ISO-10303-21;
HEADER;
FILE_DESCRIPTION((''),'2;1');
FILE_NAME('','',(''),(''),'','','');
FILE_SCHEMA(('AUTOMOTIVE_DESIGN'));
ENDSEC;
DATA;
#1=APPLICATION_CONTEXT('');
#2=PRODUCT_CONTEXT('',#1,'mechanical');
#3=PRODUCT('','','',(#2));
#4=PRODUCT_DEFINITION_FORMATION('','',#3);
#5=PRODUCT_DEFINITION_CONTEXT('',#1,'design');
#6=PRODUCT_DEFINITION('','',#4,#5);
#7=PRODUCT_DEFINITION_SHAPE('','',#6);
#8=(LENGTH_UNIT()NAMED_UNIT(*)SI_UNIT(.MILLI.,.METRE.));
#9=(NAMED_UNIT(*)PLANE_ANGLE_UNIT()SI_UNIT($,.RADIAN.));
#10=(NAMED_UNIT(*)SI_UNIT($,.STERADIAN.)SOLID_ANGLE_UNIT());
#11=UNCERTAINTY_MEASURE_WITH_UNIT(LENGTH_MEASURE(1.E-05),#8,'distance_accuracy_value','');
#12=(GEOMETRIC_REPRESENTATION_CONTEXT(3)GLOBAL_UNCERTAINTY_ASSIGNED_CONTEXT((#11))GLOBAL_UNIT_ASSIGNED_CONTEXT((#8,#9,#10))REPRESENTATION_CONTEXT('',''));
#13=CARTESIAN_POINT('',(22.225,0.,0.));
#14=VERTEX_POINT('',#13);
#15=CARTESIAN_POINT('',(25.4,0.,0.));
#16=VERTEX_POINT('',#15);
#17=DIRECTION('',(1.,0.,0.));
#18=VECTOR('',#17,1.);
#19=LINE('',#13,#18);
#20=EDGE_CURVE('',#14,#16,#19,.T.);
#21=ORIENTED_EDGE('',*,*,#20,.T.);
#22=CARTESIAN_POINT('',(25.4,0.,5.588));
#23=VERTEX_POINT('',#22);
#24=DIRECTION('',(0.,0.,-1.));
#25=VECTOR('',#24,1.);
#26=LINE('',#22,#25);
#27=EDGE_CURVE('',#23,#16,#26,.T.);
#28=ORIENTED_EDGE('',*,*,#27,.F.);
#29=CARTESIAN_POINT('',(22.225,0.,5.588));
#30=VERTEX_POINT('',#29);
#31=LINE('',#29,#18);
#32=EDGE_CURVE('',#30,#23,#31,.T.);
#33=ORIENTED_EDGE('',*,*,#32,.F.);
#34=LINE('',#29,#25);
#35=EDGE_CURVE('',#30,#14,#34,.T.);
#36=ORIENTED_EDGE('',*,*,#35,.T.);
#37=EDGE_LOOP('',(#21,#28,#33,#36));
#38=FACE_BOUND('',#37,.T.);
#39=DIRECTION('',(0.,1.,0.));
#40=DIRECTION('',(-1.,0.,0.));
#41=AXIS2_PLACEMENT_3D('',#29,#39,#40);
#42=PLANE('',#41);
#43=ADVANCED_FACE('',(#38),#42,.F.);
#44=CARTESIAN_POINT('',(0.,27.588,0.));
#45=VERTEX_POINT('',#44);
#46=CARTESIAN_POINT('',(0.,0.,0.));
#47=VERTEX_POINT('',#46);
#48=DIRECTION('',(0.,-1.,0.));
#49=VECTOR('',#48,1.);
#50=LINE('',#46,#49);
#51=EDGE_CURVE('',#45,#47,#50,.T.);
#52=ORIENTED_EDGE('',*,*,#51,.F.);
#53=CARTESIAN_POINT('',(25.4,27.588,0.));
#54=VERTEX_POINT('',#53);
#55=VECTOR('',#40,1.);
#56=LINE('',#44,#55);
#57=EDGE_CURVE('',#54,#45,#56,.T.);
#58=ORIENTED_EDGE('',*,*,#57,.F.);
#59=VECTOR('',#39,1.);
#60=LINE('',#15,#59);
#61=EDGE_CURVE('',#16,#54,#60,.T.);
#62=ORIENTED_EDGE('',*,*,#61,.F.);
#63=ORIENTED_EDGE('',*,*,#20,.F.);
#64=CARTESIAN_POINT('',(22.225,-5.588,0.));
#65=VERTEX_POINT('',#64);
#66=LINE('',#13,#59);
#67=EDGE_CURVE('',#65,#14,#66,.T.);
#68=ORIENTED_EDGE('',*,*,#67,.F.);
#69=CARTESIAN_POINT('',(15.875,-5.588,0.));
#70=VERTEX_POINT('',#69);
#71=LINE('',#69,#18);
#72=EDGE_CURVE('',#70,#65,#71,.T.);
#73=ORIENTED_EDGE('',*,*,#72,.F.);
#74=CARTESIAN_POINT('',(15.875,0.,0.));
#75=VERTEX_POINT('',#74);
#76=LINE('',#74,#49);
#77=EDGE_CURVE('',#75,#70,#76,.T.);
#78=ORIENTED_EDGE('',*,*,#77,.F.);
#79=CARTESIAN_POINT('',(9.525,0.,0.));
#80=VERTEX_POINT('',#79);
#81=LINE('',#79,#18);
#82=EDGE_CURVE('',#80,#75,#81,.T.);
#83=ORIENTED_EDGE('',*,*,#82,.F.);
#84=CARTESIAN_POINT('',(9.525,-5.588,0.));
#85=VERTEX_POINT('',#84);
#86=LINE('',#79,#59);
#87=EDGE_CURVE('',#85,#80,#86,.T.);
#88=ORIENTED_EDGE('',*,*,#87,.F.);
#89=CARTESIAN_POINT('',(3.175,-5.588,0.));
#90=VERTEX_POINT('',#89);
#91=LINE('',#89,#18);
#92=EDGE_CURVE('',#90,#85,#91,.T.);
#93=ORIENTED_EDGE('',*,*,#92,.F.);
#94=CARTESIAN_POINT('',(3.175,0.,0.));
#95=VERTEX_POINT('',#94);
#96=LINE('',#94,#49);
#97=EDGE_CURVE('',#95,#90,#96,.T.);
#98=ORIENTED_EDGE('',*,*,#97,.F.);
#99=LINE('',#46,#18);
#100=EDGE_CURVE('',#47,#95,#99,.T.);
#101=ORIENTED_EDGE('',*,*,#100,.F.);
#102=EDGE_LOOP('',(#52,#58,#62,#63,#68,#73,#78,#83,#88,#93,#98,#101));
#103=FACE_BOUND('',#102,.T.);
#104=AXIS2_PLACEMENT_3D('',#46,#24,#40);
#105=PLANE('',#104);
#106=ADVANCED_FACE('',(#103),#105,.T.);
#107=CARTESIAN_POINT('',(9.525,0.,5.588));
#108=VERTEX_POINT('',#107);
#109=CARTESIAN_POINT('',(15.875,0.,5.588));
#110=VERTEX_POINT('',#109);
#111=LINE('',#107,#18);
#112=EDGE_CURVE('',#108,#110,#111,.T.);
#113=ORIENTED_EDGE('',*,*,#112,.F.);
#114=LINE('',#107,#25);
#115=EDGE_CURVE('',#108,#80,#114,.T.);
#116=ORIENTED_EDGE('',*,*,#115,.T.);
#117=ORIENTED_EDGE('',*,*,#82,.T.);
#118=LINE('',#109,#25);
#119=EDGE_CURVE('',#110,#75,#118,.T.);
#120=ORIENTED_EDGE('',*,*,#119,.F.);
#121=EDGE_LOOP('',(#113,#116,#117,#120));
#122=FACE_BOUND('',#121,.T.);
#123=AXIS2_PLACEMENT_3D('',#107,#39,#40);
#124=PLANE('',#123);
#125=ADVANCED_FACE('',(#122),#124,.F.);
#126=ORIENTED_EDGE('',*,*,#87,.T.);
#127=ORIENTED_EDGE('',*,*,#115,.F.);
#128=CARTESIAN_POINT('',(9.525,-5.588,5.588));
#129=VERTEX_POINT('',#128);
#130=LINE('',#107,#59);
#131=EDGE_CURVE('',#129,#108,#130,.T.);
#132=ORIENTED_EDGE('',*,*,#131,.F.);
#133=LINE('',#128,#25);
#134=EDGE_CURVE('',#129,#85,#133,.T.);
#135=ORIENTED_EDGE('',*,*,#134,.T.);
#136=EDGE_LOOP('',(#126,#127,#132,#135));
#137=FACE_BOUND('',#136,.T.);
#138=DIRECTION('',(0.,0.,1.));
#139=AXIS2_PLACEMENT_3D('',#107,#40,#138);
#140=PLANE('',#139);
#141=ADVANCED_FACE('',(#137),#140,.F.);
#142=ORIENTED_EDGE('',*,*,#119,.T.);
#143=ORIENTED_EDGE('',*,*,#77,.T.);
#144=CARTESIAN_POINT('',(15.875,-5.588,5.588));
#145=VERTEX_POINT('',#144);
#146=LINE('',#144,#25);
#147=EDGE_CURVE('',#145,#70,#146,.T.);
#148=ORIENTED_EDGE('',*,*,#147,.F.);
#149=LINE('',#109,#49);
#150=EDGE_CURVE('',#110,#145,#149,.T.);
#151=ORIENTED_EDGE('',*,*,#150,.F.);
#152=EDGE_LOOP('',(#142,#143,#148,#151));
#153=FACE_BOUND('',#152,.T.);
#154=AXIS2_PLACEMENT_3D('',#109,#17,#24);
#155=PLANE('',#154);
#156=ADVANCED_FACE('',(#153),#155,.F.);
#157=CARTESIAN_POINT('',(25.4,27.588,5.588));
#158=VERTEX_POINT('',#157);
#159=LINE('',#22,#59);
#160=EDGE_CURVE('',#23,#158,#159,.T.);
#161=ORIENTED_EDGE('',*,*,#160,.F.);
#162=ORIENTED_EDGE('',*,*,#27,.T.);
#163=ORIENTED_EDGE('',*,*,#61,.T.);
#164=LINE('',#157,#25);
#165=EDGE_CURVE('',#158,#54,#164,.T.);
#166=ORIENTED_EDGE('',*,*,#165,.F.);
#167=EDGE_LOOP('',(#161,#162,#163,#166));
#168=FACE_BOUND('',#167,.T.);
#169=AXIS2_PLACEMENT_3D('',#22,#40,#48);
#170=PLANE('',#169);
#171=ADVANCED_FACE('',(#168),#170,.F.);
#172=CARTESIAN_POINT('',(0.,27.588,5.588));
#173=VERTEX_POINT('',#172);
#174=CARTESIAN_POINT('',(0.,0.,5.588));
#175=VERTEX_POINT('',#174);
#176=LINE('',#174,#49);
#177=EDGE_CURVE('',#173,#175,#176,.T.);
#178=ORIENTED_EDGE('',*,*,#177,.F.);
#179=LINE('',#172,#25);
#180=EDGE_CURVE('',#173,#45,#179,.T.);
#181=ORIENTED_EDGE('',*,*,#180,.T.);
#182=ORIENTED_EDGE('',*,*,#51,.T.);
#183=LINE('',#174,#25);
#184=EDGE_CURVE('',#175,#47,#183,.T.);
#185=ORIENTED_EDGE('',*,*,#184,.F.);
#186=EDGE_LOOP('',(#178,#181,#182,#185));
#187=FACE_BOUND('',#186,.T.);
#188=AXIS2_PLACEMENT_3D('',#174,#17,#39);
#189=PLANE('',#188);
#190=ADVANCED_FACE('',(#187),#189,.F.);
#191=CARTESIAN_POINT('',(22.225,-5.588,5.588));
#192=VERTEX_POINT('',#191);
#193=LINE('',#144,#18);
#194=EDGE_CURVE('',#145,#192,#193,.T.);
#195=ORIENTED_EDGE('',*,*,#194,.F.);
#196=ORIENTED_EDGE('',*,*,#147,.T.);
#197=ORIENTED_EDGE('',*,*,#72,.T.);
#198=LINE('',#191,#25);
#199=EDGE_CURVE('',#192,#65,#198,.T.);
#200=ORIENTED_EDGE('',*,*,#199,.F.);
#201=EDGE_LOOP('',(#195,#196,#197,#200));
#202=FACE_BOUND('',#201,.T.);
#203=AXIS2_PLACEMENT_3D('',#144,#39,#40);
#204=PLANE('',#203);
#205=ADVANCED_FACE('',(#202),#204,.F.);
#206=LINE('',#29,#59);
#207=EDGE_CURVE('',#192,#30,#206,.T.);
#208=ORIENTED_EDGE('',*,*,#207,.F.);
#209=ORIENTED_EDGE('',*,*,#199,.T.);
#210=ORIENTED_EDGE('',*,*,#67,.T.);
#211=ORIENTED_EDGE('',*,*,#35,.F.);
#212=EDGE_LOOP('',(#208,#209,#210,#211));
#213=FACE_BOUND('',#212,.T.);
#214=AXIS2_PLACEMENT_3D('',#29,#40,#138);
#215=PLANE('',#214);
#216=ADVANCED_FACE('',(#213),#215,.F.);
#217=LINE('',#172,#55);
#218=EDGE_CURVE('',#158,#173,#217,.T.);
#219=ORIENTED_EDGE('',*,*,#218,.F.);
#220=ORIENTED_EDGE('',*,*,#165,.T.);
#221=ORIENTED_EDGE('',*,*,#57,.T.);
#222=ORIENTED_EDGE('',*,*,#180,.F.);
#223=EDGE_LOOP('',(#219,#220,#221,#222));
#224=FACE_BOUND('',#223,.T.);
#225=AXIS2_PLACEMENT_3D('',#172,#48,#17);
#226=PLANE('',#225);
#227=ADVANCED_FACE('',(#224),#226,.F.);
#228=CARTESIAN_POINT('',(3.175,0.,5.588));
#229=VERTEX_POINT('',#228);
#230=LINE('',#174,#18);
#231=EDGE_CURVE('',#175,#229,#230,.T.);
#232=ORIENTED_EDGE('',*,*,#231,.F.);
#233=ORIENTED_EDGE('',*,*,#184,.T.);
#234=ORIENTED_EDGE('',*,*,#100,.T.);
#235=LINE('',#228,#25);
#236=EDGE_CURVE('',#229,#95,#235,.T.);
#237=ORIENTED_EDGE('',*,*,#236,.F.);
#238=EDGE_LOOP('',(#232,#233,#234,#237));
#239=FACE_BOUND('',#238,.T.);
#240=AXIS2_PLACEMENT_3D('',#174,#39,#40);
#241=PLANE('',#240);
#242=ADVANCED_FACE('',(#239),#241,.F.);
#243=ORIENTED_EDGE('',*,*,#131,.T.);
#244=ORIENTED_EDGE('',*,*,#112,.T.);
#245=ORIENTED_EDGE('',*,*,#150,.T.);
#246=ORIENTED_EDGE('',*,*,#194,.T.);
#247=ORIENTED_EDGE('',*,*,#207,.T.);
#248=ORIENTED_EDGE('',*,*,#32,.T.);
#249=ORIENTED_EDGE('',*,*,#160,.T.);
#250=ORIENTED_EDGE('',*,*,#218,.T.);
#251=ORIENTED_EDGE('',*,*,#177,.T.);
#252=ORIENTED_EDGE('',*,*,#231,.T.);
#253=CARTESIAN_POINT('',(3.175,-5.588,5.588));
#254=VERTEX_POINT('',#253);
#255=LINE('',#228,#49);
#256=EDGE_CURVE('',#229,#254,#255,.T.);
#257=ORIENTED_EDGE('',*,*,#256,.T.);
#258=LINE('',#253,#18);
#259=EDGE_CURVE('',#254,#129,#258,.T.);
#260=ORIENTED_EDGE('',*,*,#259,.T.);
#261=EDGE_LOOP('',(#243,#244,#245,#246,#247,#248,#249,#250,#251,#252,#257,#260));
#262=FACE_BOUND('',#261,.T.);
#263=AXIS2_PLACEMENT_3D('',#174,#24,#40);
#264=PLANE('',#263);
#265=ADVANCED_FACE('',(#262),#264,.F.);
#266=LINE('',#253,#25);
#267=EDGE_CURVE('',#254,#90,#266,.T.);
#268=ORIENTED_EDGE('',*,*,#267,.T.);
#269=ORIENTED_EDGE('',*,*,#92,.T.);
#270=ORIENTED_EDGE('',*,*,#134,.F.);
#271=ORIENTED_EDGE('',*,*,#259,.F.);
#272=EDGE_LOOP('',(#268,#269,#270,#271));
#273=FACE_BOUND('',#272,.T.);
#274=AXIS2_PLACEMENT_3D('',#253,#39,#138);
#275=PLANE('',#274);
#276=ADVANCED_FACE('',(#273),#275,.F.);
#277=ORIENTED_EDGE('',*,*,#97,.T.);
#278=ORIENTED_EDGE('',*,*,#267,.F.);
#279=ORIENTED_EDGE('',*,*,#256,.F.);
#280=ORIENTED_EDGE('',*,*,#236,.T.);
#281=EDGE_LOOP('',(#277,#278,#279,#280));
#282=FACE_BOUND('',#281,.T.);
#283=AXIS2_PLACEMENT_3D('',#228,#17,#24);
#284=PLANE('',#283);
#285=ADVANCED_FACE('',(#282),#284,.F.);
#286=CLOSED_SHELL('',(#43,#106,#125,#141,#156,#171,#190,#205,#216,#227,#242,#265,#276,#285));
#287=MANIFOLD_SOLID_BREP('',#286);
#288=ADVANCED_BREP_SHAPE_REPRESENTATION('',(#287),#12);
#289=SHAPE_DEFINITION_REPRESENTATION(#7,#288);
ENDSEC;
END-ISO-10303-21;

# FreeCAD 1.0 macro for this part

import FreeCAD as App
import Part
import Sketcher
from FreeCAD import Vector
Q = App.Units.Quantity


def add_polygon(sketch, points):
    """Adds a closed chain of lines whose ends are joined by coincident constraints."""
    first, n = sketch.GeometryCount, len(points)
    for a, b in zip(points, points[1:] + points[:1]):
        sketch.addGeometry(Part.LineSegment(App.Vector(*a, 0), App.Vector(*b, 0)), False)
    for i in range(n):
        sketch.addConstraint(Sketcher.Constraint("Coincident", first + i, 2, first + (i + 1) % n, 1))

doc = App.newDocument("Part")
body = doc.addObject("PartDesign::Body", "Body")

# Sketch on XY plane
sketch1 = body.newObject("Sketcher::SketchObject", "Sketch")
sketch1.AttachmentSupport = (doc.getObject("XY_Plane"), [""])
sketch1.MapMode = "FlatFace"
add_polygon(sketch1, [(0, 0), (3.2, 0), (3.2, -5.6), (9.5, -5.6), (9.5, 0), (15.9, 0), (15.9, -5.6), (22.2, -5.6), (22.2, 0), (25.4, 0), (25.4, 27.6), (0, 27.6)])  # lines 0-11
sketch1.addConstraint([
    Sketcher.Constraint("Horizontal", 0),
    Sketcher.Constraint("Vertical", 1),
    Sketcher.Constraint("Horizontal", 2),
    Sketcher.Constraint("Vertical", 3),
    Sketcher.Constraint("Horizontal", 4),
    Sketcher.Constraint("Vertical", 5),
    Sketcher.Constraint("Horizontal", 6),
    Sketcher.Constraint("Vertical", 7),
    Sketcher.Constraint("Horizontal", 8),
    Sketcher.Constraint("Vertical", 9),
    Sketcher.Constraint("Horizontal", 10),
    Sketcher.Constraint("Vertical", 11),
    Sketcher.Constraint("Coincident", 11, 2, -1, 1),
    Sketcher.Constraint("PointOnObject", 3, 2, -1),
    Sketcher.Constraint("PointOnObject", 7, 2, -1),
    Sketcher.Constraint("Horizontal", 2, 2, 5, 2),
    Sketcher.Constraint("Equal", 2, 4),
    Sketcher.Constraint("Equal", 4, 6),
    Sketcher.Constraint("Equal", 0, 8),
    Sketcher.Constraint("DistanceX", 10, 2, 10, 1, Q("1 in")),
    Sketcher.Constraint("DistanceX", 2, 1, 2, 2, Q("0.25 in")),
    Sketcher.Constraint("DistanceY", 1, 2, 1, 1, Q("0.22 in")),
    Sketcher.Constraint("DistanceY", 9, 1, 9, 2, 27.588),
])
pad1 = body.newObject("PartDesign::Pad", "Pad")
pad1.Profile = sketch1
pad1.Length = Q("0.22 in")

doc.recompute()
